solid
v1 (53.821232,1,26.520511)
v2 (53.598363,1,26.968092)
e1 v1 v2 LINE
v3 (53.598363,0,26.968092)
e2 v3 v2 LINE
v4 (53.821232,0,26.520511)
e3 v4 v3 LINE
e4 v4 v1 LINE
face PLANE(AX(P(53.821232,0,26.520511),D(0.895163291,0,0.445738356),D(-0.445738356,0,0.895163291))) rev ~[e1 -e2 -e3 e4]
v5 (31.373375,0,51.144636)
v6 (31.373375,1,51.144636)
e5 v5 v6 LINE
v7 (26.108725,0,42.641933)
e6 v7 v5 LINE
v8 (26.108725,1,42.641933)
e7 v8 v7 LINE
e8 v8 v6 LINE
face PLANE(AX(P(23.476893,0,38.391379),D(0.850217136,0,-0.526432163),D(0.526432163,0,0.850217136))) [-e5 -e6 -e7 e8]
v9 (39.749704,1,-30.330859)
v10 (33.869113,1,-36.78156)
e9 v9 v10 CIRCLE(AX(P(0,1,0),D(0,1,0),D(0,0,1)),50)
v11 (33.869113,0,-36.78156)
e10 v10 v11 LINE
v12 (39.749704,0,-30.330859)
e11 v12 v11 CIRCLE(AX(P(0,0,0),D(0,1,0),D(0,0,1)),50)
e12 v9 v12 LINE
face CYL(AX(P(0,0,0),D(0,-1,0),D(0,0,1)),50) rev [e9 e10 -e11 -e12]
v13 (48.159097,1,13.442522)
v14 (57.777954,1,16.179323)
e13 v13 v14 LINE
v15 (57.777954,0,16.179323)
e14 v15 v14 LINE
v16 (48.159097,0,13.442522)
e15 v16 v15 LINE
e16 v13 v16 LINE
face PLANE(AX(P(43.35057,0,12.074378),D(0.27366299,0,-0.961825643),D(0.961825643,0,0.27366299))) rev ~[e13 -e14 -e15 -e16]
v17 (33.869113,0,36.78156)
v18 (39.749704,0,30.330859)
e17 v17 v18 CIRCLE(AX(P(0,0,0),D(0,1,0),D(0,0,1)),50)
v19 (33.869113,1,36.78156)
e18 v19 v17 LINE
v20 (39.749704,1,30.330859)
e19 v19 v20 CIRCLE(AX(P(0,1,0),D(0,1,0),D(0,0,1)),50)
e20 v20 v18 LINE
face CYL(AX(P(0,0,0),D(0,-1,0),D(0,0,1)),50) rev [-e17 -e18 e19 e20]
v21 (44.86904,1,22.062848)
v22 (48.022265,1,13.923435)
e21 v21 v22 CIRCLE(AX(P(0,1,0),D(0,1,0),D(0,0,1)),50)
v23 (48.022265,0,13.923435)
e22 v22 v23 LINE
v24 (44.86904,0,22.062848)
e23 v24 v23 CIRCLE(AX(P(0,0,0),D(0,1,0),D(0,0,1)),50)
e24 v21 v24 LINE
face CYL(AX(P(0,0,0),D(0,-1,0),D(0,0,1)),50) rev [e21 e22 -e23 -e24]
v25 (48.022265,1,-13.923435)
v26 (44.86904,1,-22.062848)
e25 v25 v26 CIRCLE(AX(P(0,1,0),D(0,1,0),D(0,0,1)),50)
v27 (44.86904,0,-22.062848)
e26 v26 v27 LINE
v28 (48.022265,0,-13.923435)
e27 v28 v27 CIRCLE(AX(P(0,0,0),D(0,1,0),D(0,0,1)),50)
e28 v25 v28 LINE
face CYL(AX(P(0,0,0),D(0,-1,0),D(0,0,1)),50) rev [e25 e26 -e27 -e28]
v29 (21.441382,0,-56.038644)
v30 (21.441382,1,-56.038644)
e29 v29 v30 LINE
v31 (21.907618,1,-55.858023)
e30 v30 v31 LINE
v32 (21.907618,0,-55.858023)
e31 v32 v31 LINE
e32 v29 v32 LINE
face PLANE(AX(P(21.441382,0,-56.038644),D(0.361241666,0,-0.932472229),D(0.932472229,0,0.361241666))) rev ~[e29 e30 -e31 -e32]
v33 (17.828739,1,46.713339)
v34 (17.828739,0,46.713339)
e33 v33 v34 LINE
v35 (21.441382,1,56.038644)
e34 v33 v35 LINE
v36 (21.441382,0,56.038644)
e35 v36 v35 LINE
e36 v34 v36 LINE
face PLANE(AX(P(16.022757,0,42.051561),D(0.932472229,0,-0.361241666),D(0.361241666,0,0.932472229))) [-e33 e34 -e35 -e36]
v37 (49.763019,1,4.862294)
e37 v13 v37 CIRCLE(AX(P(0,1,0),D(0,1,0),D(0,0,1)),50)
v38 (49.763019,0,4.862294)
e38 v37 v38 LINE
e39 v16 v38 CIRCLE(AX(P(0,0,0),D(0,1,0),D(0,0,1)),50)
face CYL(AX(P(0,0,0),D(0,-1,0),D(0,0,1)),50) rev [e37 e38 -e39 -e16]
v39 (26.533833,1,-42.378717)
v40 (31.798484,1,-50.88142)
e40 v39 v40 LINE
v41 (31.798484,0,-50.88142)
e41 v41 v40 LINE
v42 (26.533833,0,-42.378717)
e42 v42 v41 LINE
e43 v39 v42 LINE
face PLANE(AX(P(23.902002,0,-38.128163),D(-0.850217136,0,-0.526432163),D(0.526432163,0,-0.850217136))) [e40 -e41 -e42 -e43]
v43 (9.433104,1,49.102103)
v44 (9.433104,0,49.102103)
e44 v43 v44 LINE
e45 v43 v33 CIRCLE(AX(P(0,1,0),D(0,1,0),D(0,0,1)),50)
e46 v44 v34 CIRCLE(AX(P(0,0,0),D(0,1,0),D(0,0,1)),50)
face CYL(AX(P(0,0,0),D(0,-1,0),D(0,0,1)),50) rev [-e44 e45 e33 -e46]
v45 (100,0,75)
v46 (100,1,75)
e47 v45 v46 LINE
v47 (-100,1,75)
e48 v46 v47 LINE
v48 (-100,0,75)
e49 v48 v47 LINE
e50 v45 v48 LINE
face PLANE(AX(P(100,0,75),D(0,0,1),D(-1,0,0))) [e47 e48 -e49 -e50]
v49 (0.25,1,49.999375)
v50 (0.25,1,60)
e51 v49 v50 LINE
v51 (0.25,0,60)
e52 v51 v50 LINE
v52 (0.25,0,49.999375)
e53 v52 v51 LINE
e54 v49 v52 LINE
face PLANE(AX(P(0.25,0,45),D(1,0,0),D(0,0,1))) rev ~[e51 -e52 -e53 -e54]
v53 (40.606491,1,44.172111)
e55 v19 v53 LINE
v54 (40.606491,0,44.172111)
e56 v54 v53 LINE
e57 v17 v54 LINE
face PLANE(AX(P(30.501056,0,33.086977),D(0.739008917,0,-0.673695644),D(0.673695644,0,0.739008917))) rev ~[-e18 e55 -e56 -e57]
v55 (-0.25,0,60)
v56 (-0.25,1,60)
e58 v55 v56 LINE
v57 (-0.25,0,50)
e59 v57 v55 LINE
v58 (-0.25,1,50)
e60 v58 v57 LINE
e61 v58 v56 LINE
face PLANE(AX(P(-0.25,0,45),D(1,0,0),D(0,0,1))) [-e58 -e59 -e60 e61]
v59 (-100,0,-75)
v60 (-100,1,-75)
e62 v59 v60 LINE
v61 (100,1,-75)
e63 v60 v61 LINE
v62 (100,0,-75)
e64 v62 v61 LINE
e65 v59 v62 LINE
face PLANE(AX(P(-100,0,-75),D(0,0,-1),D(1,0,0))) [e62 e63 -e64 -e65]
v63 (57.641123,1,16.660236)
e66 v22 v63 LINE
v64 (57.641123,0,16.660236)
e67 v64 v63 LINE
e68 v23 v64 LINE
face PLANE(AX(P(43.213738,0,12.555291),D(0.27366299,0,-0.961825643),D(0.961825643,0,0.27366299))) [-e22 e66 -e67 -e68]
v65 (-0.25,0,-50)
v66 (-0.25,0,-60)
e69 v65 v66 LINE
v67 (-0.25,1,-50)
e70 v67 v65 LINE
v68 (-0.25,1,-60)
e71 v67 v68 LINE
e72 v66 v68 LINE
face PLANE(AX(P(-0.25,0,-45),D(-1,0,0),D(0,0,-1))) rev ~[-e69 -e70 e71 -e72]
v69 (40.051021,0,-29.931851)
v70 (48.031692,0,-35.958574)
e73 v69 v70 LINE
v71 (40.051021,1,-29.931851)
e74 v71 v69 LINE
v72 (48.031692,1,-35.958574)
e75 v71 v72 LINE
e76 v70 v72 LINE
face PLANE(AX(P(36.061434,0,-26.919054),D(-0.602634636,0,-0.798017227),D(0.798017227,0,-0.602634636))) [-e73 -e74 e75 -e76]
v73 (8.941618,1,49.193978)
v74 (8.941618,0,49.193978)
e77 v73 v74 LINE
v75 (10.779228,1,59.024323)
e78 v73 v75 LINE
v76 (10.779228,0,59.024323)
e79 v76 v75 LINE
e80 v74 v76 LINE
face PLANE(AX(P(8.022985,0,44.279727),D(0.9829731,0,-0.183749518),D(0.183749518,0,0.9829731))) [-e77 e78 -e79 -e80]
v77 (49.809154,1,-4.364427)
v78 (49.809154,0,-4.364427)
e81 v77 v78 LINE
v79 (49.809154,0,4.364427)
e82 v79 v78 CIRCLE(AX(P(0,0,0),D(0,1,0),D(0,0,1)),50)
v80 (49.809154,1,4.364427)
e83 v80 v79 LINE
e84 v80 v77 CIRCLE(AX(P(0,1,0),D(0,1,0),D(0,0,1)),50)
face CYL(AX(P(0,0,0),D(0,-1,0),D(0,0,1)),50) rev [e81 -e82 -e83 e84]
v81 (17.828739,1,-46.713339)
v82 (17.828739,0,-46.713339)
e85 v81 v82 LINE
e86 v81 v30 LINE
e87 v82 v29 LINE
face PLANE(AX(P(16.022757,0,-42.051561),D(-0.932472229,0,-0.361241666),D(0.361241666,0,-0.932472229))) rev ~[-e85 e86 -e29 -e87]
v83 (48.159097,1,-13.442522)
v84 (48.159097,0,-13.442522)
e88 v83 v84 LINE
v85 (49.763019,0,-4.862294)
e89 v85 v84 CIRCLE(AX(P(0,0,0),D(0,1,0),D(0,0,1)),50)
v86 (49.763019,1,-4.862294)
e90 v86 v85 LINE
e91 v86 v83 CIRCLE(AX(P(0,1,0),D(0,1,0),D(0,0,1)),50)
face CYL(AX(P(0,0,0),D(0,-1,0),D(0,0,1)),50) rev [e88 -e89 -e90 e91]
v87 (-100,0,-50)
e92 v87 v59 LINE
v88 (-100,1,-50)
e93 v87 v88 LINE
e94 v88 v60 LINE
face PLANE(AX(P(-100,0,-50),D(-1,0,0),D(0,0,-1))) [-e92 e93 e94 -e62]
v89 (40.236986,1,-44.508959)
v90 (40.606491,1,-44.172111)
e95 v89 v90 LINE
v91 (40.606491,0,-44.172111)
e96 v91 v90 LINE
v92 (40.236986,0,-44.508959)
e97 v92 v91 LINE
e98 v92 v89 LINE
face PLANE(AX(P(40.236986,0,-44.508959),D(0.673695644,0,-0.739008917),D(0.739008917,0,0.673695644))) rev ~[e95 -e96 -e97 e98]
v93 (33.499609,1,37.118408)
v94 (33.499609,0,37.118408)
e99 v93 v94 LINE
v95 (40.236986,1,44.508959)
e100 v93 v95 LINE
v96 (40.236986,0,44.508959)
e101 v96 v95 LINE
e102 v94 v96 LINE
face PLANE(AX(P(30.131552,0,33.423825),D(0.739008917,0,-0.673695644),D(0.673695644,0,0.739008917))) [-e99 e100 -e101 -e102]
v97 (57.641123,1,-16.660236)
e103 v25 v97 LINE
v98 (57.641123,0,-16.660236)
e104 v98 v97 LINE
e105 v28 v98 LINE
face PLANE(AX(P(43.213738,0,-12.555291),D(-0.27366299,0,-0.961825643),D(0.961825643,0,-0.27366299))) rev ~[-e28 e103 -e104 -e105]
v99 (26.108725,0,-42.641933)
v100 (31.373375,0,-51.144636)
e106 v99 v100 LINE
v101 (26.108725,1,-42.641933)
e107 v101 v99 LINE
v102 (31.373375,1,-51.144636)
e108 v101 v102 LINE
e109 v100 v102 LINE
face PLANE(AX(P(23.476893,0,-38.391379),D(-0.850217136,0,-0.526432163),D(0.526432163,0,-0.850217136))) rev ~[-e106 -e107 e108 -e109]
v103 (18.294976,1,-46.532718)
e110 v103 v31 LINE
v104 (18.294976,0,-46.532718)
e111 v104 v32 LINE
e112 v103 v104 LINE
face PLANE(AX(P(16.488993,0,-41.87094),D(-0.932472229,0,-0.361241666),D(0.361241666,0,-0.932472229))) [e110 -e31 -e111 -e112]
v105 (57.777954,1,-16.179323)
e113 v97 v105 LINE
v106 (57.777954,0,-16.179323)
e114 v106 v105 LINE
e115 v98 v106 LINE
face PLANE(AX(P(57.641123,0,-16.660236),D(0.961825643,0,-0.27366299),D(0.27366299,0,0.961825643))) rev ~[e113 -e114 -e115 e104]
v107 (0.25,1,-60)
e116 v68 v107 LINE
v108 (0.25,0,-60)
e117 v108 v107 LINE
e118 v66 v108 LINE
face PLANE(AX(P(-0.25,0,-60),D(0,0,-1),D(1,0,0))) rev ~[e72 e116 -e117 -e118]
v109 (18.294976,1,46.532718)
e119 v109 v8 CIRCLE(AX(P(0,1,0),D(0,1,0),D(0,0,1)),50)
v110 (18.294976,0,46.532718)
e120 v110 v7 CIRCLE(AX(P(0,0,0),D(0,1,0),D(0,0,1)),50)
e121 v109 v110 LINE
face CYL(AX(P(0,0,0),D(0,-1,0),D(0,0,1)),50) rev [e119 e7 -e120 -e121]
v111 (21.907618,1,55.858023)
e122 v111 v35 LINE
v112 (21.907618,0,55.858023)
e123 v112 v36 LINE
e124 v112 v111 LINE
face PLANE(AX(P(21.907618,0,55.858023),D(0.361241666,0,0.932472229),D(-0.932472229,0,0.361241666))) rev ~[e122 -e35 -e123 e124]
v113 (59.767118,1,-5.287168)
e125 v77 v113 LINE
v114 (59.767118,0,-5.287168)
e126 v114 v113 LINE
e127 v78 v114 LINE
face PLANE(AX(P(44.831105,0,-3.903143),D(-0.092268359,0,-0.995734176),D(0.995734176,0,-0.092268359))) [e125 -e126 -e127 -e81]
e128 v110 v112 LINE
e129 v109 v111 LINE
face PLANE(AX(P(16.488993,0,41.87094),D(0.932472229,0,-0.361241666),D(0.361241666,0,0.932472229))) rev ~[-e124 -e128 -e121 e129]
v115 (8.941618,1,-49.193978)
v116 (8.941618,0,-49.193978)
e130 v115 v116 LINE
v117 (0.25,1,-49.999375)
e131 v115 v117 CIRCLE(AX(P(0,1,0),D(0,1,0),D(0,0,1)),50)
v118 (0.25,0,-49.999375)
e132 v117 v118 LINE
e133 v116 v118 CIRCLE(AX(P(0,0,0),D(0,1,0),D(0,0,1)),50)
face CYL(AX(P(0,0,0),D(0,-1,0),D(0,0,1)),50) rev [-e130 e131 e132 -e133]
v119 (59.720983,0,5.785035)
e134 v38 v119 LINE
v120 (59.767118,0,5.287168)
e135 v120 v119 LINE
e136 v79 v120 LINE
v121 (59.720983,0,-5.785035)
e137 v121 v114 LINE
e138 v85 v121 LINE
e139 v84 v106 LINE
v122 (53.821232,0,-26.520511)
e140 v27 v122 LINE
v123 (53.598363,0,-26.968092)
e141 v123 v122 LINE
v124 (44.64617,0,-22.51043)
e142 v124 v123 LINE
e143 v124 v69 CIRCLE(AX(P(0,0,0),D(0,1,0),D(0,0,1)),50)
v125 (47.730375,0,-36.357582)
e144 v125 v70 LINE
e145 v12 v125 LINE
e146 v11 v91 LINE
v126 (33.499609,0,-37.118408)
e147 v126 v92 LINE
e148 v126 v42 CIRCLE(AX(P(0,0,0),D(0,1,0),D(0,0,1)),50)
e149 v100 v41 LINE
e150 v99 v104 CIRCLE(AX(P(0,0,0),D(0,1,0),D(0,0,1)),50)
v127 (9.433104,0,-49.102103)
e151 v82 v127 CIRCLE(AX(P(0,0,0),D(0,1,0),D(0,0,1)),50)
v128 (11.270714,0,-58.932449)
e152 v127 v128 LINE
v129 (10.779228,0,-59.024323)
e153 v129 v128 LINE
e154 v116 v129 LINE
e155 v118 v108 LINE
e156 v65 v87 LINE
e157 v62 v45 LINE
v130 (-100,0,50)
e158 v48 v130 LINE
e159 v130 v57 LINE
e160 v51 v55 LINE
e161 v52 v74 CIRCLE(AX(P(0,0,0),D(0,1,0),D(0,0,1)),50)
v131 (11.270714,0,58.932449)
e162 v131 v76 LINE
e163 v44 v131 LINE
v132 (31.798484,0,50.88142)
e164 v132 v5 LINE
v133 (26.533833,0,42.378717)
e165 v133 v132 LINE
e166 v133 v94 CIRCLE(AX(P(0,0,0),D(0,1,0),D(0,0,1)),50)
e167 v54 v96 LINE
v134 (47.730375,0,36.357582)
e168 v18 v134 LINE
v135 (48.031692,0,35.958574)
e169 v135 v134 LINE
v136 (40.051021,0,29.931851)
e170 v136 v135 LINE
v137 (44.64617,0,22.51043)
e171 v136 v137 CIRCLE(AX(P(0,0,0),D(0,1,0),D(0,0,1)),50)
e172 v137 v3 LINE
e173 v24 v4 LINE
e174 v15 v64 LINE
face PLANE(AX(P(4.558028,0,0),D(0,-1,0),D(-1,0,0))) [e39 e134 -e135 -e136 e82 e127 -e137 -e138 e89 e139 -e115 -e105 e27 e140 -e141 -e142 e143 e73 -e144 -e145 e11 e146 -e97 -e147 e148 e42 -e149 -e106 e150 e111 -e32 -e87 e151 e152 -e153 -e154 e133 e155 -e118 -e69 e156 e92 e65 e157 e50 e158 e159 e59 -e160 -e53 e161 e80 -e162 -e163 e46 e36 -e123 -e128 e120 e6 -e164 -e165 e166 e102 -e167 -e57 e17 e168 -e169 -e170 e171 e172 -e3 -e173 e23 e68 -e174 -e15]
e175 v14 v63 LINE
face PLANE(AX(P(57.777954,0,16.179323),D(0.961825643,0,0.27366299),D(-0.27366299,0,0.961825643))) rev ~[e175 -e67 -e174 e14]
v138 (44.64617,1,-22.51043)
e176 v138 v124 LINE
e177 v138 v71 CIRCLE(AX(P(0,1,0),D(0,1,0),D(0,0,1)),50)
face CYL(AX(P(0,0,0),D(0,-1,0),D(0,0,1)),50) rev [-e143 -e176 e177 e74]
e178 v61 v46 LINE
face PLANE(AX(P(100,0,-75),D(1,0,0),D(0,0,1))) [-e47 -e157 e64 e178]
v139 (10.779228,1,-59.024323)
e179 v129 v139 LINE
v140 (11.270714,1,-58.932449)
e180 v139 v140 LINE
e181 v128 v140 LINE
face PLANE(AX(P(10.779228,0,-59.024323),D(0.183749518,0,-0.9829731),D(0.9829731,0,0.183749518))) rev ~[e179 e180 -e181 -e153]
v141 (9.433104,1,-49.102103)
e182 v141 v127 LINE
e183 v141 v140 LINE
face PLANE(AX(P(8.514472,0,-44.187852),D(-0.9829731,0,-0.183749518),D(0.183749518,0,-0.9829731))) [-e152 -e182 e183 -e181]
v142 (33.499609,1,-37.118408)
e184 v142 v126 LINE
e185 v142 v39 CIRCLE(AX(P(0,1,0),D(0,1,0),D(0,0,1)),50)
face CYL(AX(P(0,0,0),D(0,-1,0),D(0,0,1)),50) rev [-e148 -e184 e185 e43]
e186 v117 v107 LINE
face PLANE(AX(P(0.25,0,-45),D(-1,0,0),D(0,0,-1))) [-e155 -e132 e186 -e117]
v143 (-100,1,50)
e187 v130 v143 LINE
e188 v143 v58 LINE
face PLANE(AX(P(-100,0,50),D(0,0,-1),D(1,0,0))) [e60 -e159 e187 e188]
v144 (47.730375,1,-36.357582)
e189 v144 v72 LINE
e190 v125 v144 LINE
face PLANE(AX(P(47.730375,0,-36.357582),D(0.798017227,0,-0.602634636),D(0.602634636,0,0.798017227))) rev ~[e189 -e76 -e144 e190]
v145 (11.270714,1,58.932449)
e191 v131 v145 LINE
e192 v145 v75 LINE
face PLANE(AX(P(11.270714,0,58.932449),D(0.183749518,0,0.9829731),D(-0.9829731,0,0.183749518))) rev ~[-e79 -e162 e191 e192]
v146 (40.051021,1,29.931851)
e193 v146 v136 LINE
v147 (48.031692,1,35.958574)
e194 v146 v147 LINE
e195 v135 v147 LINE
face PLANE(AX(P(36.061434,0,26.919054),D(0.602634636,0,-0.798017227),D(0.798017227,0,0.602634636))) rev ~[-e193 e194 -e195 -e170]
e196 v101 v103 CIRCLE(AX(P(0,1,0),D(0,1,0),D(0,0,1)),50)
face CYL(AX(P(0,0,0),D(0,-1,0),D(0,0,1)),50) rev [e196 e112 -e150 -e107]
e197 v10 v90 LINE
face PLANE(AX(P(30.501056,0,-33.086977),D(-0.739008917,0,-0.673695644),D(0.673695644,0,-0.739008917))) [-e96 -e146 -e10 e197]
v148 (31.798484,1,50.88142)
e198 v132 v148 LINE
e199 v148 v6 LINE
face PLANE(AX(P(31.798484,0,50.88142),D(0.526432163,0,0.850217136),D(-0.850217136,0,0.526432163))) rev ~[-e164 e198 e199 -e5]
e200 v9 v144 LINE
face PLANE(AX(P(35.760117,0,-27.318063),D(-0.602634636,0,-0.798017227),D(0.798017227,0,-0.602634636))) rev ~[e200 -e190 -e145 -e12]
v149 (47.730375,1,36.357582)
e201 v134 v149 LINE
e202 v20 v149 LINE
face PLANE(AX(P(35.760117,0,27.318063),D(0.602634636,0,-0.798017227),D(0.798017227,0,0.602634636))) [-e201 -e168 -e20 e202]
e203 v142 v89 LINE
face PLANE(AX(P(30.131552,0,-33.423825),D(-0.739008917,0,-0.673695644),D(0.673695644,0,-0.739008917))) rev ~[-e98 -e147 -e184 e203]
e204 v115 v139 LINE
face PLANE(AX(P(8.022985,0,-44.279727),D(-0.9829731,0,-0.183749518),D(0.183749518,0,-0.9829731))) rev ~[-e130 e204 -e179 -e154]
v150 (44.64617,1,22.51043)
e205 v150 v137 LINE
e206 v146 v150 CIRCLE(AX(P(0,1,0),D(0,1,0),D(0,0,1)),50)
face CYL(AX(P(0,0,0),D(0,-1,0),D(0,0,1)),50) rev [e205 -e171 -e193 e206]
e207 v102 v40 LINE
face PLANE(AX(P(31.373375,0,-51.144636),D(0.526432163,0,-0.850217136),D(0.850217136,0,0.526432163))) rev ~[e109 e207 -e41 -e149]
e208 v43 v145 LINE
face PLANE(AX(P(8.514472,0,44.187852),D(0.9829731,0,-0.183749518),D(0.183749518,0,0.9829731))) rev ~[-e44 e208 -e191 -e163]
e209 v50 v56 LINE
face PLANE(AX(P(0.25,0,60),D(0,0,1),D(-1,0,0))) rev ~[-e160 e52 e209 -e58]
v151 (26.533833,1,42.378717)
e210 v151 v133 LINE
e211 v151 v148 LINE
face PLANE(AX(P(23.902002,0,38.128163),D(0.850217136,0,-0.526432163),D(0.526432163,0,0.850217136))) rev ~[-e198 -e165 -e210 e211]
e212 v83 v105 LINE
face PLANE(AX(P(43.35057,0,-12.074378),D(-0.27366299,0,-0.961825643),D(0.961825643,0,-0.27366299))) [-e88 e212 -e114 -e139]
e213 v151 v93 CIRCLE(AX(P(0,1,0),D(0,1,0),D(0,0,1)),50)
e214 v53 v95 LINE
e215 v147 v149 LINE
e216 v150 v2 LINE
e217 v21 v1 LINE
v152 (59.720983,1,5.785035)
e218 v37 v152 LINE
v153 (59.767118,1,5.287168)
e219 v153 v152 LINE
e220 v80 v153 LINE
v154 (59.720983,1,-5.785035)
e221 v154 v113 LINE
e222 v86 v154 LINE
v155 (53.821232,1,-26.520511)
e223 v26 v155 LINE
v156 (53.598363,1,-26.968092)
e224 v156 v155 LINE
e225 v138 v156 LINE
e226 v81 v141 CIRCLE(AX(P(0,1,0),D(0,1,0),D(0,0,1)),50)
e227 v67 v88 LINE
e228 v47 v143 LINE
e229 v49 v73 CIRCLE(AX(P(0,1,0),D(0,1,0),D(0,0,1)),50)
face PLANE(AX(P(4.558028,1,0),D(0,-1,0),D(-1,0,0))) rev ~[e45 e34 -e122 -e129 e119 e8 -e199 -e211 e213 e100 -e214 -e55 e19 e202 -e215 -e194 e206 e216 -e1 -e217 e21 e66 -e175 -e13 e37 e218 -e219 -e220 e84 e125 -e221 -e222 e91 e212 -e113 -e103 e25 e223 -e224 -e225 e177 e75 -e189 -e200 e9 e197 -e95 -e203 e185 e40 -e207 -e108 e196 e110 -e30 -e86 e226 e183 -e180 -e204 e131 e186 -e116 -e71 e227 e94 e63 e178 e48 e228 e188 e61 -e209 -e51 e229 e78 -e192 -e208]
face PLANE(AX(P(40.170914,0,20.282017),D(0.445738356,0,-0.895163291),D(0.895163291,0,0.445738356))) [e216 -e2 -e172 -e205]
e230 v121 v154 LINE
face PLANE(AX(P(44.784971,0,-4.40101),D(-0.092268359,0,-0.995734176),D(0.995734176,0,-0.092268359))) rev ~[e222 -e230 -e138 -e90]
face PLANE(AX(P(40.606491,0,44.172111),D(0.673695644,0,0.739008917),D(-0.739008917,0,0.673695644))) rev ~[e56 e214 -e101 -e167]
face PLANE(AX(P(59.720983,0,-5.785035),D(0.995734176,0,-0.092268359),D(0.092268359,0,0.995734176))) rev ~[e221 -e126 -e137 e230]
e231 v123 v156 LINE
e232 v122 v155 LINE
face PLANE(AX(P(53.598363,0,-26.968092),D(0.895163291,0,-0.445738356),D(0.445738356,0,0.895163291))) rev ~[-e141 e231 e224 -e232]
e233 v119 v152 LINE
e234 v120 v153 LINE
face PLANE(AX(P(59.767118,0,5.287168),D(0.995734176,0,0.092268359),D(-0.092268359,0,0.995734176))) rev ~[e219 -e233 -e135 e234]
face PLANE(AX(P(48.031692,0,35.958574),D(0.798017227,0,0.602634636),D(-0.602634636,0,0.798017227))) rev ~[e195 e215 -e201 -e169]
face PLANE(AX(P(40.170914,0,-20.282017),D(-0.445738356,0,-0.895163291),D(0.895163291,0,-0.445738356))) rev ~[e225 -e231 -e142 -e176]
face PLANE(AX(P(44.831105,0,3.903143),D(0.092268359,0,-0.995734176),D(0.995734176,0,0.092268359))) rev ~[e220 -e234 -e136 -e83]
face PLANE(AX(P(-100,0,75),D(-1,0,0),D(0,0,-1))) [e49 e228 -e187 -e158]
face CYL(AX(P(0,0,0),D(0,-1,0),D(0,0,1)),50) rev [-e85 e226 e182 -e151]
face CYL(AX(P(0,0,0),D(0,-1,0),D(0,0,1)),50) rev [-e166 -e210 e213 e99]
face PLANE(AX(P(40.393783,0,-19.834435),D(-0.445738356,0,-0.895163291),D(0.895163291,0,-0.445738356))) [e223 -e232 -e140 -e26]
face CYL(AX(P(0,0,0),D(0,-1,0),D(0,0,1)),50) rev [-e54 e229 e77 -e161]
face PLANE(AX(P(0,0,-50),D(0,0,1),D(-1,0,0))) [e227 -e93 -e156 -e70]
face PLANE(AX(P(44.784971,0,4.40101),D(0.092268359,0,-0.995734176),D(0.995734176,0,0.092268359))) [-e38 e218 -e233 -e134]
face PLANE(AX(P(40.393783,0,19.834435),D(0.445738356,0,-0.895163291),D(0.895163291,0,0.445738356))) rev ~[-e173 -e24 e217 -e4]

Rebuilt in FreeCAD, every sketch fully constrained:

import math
import FreeCAD as App
import Part
import Sketcher
from FreeCAD import Vector
Q = App.Units.Quantity


def add_polygon(sketch, points):
    """Adds a closed chain of lines whose ends are joined by coincident constraints."""
    first, n = sketch.GeometryCount, len(points)
    for a, b in zip(points, points[1:] + points[:1]):
        sketch.addGeometry(Part.LineSegment(App.Vector(*a, 0), App.Vector(*b, 0)), False)
    for i in range(n):
        sketch.addConstraint(Sketcher.Constraint("Coincident", first + i, 2, first + (i + 1) % n, 1))

doc = App.newDocument("Part")
body = doc.addObject("PartDesign::Body", "Body")

# Sketch on XZ plane
sketch1 = body.newObject("Sketcher::SketchObject", "Sketch")
sketch1.AttachmentSupport = (doc.getObject("XZ_Plane"), [""])
sketch1.MapMode = "FlatFace"
sketch1.addGeometry(Part.LineSegment(Vector(-100, -50, 0), Vector(0, -50, 0)), False)
sketch1.addGeometry(Part.ArcOfCircle(Part.Circle(Vector(0, 0, 0), Vector(0, 0, 1), 50), math.radians(-90), math.radians(90)), False)
sketch1.addGeometry(Part.LineSegment(Vector(0, 50, 0), Vector(-100, 50, 0)), False)
sketch1.addGeometry(Part.LineSegment(Vector(-100, 50, 0), Vector(-100, 75, 0)), False)
sketch1.addGeometry(Part.LineSegment(Vector(-100, 75, 0), Vector(100, 75, 0)), False)
sketch1.addGeometry(Part.LineSegment(Vector(100, 75, 0), Vector(100, -75, 0)), False)
sketch1.addGeometry(Part.LineSegment(Vector(100, -75, 0), Vector(-100, -75, 0)), False)
sketch1.addGeometry(Part.LineSegment(Vector(-100, -75, 0), Vector(-100, -50, 0)), False)
sketch1.addConstraint(Sketcher.Constraint("Tangent", 0, 2, 1, 1))
sketch1.addConstraint(Sketcher.Constraint("Tangent", 1, 2, 2, 1))
sketch1.addConstraint(Sketcher.Constraint("Coincident", 2, 2, 3, 1))
sketch1.addConstraint(Sketcher.Constraint("Coincident", 3, 2, 4, 1))
sketch1.addConstraint(Sketcher.Constraint("Coincident", 4, 2, 5, 1))
sketch1.addConstraint(Sketcher.Constraint("Coincident", 5, 2, 6, 1))
sketch1.addConstraint(Sketcher.Constraint("Coincident", 6, 2, 7, 1))
sketch1.addConstraint(Sketcher.Constraint("Coincident", 7, 2, 0, 1))
sketch1.addConstraint(Sketcher.Constraint("Horizontal", 0))
sketch1.addConstraint(Sketcher.Constraint("Horizontal", 2))
sketch1.addConstraint(Sketcher.Constraint("Vertical", 3))
sketch1.addConstraint(Sketcher.Constraint("Horizontal", 4))
sketch1.addConstraint(Sketcher.Constraint("Vertical", 5))
sketch1.addConstraint(Sketcher.Constraint("Horizontal", 6))
sketch1.addConstraint(Sketcher.Constraint("Vertical", 7))
sketch1.addConstraint(Sketcher.Constraint("Coincident", 1, 3, -1, 1))
sketch1.addConstraint(Sketcher.Constraint("Symmetric", 3, 2, 5, 2, -1, 1))
sketch1.addConstraint(Sketcher.Constraint("Vertical", 3, 2, 6, 2))
sketch1.addConstraint(Sketcher.Constraint("Radius", 1, Q("50 mm")))
sketch1.addConstraint(Sketcher.Constraint("DistanceX", 0, 1, 0, 2, Q("100 mm")))
sketch1.addConstraint(Sketcher.Constraint("DistanceY", 3, 1, 3, 2, Q("25 mm")))
pad1 = body.newObject("PartDesign::Pad", "Pad")
pad1.Profile = sketch1
pad1.Length = 1
pad1.Reversed = True

# Sketch on XZ plane
sketch2 = body.newObject("Sketcher::SketchObject", "Sketch001")
sketch2.AttachmentSupport = (doc.getObject("XZ_Plane"), [""])
sketch2.MapMode = "FlatFace"
add_polygon(sketch2, [(-0.2, -60), (-0.2, -45), (0.2, -45), (0.2, -60)])  # lines 0-3
sketch2.addConstraint(Sketcher.Constraint("Vertical", 0))
sketch2.addConstraint(Sketcher.Constraint("Horizontal", 1))
sketch2.addConstraint(Sketcher.Constraint("Vertical", 2))
sketch2.addConstraint(Sketcher.Constraint("Horizontal", 3))
sketch2.addConstraint(Sketcher.Constraint("DistanceY", 0, 1, 0, 2, Q("15 mm")))
sketch2.addConstraint(Sketcher.Constraint("DistanceX", 1, 1, 1, 2, Q("0.5 mm")))
sketch2.addConstraint(Sketcher.Constraint("DistanceY", 0, 2, -1, 1, Q("45 mm")))
sketch2.addConstraint(Sketcher.Constraint("DistanceX", 0, 2, -1, 1, Q("0.25 mm")))
pocket1 = body.newObject("PartDesign::Pocket", "Pocket")
pocket1.Profile = sketch2
pocket1.Length = 2
doc.recompute()

polarpattern = body.newObject("PartDesign::PolarPattern", "PolarPattern")
polarpattern.Originals = [pocket1]
polarpattern.Axis = (doc.getObject("Y_Axis"), [""])
polarpattern.Angle = 180
polarpattern.Occurrences = 18
polarpattern.Reversed = True
body.Tip = polarpattern

doc.recompute()
